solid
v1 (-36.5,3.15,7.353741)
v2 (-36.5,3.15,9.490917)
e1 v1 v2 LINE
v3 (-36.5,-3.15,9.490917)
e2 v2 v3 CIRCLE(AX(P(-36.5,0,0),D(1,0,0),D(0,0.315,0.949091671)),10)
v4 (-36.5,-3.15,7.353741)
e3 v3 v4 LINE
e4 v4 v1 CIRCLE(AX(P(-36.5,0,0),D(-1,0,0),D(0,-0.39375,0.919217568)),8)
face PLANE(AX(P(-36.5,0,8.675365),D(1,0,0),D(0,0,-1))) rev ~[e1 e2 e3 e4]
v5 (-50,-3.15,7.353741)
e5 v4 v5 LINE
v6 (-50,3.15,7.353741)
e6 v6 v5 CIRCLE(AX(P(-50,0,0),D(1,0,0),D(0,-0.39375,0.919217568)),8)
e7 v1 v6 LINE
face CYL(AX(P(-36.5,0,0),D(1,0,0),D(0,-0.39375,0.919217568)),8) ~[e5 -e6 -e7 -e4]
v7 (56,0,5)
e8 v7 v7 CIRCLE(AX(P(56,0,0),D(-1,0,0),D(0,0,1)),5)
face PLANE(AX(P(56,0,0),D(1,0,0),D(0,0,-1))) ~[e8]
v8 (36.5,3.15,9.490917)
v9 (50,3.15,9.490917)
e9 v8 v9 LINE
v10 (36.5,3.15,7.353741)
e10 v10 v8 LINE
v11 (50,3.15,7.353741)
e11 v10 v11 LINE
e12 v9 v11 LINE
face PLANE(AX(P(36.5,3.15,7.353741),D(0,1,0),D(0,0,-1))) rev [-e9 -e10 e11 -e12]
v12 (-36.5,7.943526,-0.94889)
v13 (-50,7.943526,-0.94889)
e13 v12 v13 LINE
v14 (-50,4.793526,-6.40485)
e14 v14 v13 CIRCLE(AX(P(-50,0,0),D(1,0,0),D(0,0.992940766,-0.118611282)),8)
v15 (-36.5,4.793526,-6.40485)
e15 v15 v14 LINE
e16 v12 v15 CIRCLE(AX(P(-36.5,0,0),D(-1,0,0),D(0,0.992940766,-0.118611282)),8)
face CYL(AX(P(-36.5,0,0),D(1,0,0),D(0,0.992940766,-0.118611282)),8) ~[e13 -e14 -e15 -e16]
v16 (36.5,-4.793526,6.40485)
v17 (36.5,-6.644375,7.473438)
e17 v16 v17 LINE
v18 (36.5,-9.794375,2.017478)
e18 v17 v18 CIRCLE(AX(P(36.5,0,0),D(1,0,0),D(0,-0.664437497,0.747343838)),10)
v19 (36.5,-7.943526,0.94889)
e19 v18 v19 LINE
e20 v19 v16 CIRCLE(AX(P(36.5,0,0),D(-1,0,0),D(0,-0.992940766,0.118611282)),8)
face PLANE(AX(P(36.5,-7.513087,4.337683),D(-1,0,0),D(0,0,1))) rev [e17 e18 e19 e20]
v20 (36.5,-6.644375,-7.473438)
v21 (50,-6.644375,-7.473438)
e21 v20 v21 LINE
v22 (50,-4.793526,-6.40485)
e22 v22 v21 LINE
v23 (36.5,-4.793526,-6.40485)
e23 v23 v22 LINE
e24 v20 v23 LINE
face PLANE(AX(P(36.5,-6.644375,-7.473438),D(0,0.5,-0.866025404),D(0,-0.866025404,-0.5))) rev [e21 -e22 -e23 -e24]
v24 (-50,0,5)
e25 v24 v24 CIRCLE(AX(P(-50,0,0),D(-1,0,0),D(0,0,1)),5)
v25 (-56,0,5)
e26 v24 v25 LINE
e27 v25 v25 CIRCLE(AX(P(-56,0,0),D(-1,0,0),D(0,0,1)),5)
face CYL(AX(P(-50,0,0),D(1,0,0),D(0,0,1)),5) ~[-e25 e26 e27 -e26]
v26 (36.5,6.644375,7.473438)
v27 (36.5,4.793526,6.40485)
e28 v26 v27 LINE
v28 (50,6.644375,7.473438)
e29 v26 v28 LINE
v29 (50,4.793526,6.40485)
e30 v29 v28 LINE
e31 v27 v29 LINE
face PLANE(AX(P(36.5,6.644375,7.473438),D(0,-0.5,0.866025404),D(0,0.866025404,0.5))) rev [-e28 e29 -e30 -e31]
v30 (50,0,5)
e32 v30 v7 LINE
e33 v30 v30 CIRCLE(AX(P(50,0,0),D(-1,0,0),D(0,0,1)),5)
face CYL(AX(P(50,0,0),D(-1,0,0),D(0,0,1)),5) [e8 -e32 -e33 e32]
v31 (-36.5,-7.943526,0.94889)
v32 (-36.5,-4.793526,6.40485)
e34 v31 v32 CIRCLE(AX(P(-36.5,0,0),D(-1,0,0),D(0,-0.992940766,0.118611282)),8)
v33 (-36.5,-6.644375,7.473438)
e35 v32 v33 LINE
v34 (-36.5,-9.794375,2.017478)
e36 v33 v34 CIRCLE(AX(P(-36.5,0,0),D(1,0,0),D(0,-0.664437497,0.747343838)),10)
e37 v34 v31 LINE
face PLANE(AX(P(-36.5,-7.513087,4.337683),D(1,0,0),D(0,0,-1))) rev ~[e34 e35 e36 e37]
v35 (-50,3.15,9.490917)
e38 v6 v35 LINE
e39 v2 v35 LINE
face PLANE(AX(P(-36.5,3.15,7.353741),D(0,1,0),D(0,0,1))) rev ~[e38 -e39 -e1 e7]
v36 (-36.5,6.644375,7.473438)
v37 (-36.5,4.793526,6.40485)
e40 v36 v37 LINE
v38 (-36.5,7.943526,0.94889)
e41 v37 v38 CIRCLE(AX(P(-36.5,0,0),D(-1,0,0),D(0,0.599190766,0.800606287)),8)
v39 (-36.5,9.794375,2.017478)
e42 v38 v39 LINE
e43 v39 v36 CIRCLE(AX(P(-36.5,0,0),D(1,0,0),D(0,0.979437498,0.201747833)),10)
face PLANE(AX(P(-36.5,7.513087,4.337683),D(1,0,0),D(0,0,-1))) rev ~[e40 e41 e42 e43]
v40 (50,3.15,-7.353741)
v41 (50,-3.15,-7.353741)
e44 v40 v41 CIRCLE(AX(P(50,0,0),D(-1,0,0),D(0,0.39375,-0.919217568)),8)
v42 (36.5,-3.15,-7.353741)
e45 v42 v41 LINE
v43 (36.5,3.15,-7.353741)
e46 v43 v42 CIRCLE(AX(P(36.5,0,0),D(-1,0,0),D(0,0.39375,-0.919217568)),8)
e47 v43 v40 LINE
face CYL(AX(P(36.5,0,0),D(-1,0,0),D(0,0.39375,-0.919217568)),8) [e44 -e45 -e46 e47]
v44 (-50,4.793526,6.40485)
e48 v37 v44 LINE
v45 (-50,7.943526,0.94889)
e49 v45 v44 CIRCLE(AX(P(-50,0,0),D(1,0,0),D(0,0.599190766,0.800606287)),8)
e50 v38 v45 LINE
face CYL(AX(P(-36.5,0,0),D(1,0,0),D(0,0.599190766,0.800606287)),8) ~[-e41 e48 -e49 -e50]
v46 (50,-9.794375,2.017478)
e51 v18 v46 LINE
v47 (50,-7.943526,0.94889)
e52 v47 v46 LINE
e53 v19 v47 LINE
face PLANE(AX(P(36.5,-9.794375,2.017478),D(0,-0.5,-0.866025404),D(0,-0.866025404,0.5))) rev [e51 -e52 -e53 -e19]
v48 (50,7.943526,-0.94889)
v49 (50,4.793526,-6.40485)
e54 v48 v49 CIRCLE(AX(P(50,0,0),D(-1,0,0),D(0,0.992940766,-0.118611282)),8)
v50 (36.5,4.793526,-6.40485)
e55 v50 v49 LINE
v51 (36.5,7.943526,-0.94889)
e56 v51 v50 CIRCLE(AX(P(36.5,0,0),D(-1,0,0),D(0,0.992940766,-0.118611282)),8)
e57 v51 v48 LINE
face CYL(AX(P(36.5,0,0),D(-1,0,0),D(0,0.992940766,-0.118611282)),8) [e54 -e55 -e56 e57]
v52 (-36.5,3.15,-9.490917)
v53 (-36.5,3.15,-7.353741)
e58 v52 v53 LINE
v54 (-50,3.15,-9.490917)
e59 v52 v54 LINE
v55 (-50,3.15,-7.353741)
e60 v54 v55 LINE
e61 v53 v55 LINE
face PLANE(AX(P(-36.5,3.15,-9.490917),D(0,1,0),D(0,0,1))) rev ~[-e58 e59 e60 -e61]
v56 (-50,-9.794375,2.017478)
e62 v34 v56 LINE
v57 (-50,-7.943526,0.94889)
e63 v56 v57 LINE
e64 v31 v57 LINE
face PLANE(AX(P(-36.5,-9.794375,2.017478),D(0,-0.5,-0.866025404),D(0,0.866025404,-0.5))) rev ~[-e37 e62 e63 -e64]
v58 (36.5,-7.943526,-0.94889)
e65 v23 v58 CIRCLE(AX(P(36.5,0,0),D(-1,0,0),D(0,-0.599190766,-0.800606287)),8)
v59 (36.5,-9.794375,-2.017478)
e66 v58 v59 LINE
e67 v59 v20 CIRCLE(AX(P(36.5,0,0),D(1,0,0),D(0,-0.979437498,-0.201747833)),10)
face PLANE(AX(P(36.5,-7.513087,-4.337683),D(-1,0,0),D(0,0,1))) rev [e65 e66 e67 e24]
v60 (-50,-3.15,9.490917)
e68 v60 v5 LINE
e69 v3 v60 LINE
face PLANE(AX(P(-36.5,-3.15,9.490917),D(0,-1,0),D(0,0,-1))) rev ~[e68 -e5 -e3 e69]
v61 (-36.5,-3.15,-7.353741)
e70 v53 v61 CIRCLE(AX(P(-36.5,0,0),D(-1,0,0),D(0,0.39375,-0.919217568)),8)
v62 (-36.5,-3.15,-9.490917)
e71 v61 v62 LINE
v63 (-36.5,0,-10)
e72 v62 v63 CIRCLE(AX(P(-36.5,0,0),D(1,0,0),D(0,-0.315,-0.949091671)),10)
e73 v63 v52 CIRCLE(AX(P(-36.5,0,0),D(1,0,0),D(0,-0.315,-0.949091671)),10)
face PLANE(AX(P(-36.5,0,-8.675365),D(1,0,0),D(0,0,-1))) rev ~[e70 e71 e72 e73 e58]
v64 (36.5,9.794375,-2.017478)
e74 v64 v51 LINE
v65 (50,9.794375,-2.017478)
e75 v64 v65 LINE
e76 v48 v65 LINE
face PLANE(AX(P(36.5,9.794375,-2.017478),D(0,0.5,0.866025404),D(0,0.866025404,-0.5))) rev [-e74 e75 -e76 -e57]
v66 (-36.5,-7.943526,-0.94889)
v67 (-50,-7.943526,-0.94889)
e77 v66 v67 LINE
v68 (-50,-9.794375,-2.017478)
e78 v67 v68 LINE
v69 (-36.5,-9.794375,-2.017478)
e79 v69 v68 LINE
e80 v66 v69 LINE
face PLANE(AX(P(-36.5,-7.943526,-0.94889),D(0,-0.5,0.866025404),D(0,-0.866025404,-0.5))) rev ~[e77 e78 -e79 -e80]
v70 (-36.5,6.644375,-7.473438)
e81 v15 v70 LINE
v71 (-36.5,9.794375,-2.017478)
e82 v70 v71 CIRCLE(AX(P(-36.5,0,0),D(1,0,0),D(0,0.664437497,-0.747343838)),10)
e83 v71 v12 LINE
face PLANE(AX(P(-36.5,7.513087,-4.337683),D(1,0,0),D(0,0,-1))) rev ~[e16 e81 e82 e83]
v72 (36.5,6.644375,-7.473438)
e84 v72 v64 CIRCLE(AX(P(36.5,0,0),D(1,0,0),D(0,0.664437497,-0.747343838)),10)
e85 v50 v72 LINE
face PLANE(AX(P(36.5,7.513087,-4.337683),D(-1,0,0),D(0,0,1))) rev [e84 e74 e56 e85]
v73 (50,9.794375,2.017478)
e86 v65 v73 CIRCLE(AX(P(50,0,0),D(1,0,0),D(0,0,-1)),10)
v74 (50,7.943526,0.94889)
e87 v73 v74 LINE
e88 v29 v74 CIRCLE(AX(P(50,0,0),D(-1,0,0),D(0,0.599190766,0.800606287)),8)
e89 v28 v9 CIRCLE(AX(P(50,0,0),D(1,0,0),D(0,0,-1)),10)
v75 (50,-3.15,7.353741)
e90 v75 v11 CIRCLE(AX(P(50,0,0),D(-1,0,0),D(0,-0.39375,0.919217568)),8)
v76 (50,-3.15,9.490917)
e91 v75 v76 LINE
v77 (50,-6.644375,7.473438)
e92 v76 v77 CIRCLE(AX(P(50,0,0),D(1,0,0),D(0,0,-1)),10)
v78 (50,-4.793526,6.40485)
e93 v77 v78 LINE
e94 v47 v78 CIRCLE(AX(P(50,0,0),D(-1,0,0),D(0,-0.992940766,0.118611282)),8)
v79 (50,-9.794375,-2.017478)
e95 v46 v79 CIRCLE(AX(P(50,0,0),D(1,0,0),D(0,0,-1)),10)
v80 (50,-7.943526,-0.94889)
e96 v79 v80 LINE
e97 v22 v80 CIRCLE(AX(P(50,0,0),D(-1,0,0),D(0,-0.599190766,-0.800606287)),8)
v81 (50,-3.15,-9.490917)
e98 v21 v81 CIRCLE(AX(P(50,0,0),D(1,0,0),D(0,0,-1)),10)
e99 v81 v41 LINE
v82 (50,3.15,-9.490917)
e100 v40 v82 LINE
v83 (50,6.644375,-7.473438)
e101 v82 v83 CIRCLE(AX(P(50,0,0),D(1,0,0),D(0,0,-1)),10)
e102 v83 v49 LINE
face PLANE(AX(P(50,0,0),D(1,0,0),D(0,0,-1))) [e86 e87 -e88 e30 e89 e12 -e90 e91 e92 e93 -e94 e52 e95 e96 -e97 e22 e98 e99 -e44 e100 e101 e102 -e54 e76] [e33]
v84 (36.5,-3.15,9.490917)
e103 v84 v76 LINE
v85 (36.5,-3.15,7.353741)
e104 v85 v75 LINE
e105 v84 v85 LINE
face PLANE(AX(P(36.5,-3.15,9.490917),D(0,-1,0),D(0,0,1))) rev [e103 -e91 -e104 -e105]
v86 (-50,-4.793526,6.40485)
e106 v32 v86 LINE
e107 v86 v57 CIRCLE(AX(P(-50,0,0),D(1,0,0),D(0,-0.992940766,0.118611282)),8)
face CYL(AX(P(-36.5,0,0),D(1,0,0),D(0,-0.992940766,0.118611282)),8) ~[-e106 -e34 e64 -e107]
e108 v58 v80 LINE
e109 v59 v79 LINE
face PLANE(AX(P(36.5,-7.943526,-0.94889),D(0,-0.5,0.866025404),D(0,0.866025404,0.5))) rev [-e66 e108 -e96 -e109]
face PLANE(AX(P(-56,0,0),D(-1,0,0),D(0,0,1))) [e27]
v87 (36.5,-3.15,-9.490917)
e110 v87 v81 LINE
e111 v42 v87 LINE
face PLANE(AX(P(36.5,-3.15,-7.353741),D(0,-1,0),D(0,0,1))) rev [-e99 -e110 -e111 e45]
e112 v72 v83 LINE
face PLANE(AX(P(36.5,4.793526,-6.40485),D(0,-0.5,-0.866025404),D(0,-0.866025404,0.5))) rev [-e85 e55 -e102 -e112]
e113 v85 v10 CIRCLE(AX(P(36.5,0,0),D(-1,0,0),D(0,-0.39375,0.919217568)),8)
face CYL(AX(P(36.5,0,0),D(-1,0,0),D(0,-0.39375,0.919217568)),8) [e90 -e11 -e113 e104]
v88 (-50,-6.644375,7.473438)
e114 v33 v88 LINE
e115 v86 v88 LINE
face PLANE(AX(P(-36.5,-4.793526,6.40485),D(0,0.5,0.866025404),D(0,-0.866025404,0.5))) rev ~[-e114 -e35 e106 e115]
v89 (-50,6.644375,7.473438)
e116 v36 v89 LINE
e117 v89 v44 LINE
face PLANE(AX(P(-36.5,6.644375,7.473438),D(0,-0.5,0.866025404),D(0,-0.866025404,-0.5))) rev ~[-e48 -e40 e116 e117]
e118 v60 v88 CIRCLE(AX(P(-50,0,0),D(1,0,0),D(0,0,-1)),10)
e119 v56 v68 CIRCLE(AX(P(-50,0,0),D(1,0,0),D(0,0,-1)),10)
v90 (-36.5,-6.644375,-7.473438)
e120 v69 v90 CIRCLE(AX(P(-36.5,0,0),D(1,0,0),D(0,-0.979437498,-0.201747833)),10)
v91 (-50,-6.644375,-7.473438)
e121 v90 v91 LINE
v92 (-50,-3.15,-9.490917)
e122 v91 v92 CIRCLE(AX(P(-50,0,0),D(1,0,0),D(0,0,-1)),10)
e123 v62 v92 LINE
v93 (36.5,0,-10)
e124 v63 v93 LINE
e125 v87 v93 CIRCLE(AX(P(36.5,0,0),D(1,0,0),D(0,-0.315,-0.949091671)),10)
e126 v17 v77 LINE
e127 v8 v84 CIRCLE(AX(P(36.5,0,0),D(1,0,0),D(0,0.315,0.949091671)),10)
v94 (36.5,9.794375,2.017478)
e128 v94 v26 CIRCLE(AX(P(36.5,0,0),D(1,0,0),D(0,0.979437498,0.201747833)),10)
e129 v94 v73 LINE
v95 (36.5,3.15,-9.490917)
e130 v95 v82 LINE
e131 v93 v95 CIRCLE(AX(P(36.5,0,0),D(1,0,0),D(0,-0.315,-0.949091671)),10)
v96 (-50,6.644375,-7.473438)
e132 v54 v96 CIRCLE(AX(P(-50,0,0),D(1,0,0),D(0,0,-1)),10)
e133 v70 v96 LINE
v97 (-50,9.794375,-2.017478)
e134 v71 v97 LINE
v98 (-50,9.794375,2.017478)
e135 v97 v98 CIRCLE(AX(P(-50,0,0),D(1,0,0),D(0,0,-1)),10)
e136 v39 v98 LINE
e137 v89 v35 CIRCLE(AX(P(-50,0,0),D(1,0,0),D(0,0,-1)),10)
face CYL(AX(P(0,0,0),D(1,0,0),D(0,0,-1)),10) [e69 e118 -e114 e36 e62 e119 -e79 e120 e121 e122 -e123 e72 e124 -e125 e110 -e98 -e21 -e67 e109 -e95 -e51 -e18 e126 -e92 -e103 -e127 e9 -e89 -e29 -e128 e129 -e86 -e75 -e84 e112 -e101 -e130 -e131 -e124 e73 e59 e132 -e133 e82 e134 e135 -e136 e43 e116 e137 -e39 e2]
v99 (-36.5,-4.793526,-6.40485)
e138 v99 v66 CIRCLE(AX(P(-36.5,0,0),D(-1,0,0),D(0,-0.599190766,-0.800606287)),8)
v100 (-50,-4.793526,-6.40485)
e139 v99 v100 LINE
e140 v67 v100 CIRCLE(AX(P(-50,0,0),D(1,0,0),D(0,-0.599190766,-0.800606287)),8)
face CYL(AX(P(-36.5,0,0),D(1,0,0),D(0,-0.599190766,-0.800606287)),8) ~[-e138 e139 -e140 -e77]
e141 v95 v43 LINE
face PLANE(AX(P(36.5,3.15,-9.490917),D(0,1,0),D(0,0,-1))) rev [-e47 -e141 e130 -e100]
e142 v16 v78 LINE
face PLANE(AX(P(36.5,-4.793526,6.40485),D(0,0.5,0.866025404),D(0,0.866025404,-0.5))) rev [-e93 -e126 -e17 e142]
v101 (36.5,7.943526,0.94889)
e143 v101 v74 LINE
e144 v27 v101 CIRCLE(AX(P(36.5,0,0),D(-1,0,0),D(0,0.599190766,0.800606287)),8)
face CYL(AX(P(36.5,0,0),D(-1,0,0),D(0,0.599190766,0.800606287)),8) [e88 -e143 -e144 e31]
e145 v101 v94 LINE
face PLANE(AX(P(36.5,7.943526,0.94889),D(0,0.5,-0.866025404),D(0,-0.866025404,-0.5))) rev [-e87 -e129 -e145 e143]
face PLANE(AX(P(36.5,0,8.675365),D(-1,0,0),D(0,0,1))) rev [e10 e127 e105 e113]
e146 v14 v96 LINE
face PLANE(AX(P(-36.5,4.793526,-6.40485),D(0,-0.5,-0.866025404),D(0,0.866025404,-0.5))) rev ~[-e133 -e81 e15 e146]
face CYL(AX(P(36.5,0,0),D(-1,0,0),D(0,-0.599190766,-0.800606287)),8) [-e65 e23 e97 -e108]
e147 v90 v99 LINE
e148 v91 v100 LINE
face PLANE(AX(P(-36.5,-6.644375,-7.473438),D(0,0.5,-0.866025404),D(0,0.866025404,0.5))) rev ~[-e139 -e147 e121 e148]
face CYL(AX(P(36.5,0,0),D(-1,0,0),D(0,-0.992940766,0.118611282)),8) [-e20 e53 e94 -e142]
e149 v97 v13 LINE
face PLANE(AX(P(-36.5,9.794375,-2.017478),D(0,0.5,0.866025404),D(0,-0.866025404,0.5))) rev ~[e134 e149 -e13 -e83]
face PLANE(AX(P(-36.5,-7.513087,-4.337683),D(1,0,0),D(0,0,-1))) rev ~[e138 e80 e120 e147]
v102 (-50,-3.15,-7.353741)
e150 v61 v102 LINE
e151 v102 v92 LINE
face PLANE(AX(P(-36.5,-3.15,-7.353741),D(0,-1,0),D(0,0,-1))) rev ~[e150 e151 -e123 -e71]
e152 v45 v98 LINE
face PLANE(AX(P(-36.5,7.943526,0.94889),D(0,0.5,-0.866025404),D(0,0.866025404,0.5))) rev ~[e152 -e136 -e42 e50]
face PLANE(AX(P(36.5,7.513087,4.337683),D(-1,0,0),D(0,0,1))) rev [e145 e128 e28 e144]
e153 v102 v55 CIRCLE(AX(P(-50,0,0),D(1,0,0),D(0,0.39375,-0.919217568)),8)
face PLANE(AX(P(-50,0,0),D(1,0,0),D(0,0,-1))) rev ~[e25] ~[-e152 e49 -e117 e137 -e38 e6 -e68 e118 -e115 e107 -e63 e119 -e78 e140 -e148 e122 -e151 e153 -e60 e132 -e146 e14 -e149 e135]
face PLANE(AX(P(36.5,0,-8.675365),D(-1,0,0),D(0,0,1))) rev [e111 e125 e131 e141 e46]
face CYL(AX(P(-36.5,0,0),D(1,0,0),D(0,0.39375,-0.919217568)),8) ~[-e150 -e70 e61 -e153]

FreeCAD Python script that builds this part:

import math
import FreeCAD as App
import Part
import Sketcher
Q = App.Units.Quantity

doc = App.newDocument("Part")
params = doc.addObject("Spreadsheet::Sheet", "Params")
for row, (alias, value) in enumerate([
    ("sketch1_diameter", "20 mm"),
    ("pad1_length", "100 mm"),
    ("sketch2_radius", "10 mm"),
    ("sketch2_radius2", "8 mm"),
    ("sketch3_diameter", "10 mm"),
    ("pad2_length", "6 mm"),
], start=1):
    params.set(f"A{row}", alias)
    params.set(f"B{row}", "=" + value)
    params.setAlias(f"B{row}", alias)

body = doc.addObject("PartDesign::Body", "Body")

# Sketch on YZ plane
sketch1 = body.newObject("Sketcher::SketchObject", "Sketch")
sketch1.AttachmentSupport = (doc.getObject("YZ_Plane"), [""])
sketch1.MapMode = "FlatFace"
sketch1.addGeometry(Part.Circle(App.Vector(0, 0, 0), App.Vector(0, 0, 1), 10), False)
sketch1.addConstraint([
    Sketcher.Constraint("Coincident", 0, 3, -1, 1),
    Sketcher.Constraint("Diameter", 0, Q("20 mm")),
])
sketch1.setExpression("Constraints[1]", "Params.sketch1_diameter")
pad1 = body.newObject("PartDesign::Pad", "Pad")
pad1.Profile = sketch1
pad1.setExpression("Length", "Params.pad1_length")
pad1.Midplane = True

# Sketch on YZ plane
sketch2 = body.newObject("Sketcher::SketchObject", "Sketch001")
sketch2.AttachmentSupport = (doc.getObject("YZ_Plane"), [""])
sketch2.MapMode = "FlatFace"
sketch2.AttachmentOffset = App.Placement(App.Vector(0, 0, -36.5), App.Rotation())
sketch2.addGeometry([
    Part.LineSegment(App.Vector(-3.1, -7.4, 0), App.Vector(-3.1, -9.5, 0)),  # 0
    Part.ArcOfCircle(Part.Circle(App.Vector(0, 0, 0), App.Vector(0, 0, 1), 10), math.radians(-108), math.radians(-72)),  # 1
    Part.LineSegment(App.Vector(3.1, -9.5, 0), App.Vector(3.1, -7.4, 0)),  # 2
    Part.ArcOfCircle(Part.Circle(App.Vector(0, 0, 0), App.Vector(0, 0, 1), 8), math.radians(-113), math.radians(-67)),  # 3
    Part.LineSegment(App.Vector(6.6, 7.5, 0), App.Vector(4.8, 6.4, 0)),  # 4
    Part.ArcOfCircle(Part.Circle(App.Vector(0, 0, 0), App.Vector(0, 0, 1), 8), math.radians(7), math.radians(53)),  # 5
    Part.LineSegment(App.Vector(7.9, 0.9, 0), App.Vector(9.8, 2, 0)),  # 6
    Part.ArcOfCircle(Part.Circle(App.Vector(0, 0, 0), App.Vector(0, 0, 1), 10), math.radians(12), math.radians(48)),  # 7
    Part.LineSegment(App.Vector(-3.1, 9.5, 0), App.Vector(-3.1, 7.4, 0)),  # 8
    Part.ArcOfCircle(Part.Circle(App.Vector(0, 0, 0), App.Vector(0, 0, 1), 8), math.radians(67), math.radians(113)),  # 9
    Part.LineSegment(App.Vector(3.1, 7.4, 0), App.Vector(3.1, 9.5, 0)),  # 10
    Part.ArcOfCircle(Part.Circle(App.Vector(0, 0, 0), App.Vector(0, 0, 1), 10), math.radians(72), math.radians(108)),  # 11
    Part.LineSegment(App.Vector(-9.8, 2, 0), App.Vector(-7.9, 0.9, 0)),  # 12
    Part.ArcOfCircle(Part.Circle(App.Vector(0, 0, 0), App.Vector(0, 0, 1), 8), math.radians(127), math.radians(173)),  # 13
    Part.LineSegment(App.Vector(-4.8, 6.4, 0), App.Vector(-6.6, 7.5, 0)),  # 14
    Part.ArcOfCircle(Part.Circle(App.Vector(0, 0, 0), App.Vector(0, 0, 1), 10), math.radians(132), math.radians(168)),  # 15
    Part.LineSegment(App.Vector(-7.9, -0.9, 0), App.Vector(-9.8, -2, 0)),  # 16
    Part.ArcOfCircle(Part.Circle(App.Vector(0, 0, 0), App.Vector(0, 0, 1), 10), math.radians(-168), math.radians(-132)),  # 17
    Part.LineSegment(App.Vector(-6.6, -7.5, 0), App.Vector(-4.8, -6.4, 0)),  # 18
    Part.ArcOfCircle(Part.Circle(App.Vector(0, 0, 0), App.Vector(0, 0, 1), 8), math.radians(-173), math.radians(-127)),  # 19
    Part.LineSegment(App.Vector(4.8, -6.4, 0), App.Vector(6.6, -7.5, 0)),  # 20
    Part.ArcOfCircle(Part.Circle(App.Vector(0, 0, 0), App.Vector(0, 0, 1), 10), math.radians(-48), math.radians(-12)),  # 21
    Part.LineSegment(App.Vector(9.8, -2, 0), App.Vector(7.9, -0.9, 0)),  # 22
    Part.ArcOfCircle(Part.Circle(App.Vector(0, 0, 0), App.Vector(0, 0, 1), 8), math.radians(-53), math.radians(-7)),  # 23
], False)
sketch2.addConstraint([
    Sketcher.Constraint("Coincident", 0, 2, 1, 1),
    Sketcher.Constraint("Coincident", 1, 2, 2, 1),
    Sketcher.Constraint("Coincident", 2, 2, 3, 2),
    Sketcher.Constraint("Coincident", 3, 1, 0, 1),
    Sketcher.Constraint("Coincident", 4, 2, 5, 2),
    Sketcher.Constraint("Coincident", 5, 1, 6, 1),
    Sketcher.Constraint("Coincident", 6, 2, 7, 1),
    Sketcher.Constraint("Coincident", 7, 2, 4, 1),
    Sketcher.Constraint("Coincident", 8, 2, 9, 2),
    Sketcher.Constraint("Coincident", 9, 1, 10, 1),
    Sketcher.Constraint("Coincident", 10, 2, 11, 1),
    Sketcher.Constraint("Coincident", 11, 2, 8, 1),
    Sketcher.Constraint("Coincident", 12, 2, 13, 2),
    Sketcher.Constraint("Coincident", 13, 1, 14, 1),
    Sketcher.Constraint("Coincident", 14, 2, 15, 1),
    Sketcher.Constraint("Coincident", 15, 2, 12, 1),
    Sketcher.Constraint("Coincident", 16, 2, 17, 1),
    Sketcher.Constraint("Coincident", 17, 2, 18, 1),
    Sketcher.Constraint("Coincident", 18, 2, 19, 2),
    Sketcher.Constraint("Coincident", 19, 1, 16, 1),
    Sketcher.Constraint("Coincident", 20, 2, 21, 1),
    Sketcher.Constraint("Coincident", 21, 2, 22, 1),
    Sketcher.Constraint("Coincident", 22, 2, 23, 2),
    Sketcher.Constraint("Coincident", 23, 1, 20, 1),
    Sketcher.Constraint("Vertical", 0),
    Sketcher.Constraint("Vertical", 2),
    Sketcher.Constraint("Vertical", 8),
    Sketcher.Constraint("Vertical", 10),
    Sketcher.Constraint("Coincident", 1, 3, -1, 1),
    Sketcher.Constraint("Coincident", 3, 3, -1, 1),
    Sketcher.Constraint("Coincident", 5, 3, -1, 1),
    Sketcher.Constraint("Coincident", 7, 3, -1, 1),
    Sketcher.Constraint("Coincident", 9, 3, -1, 1),
    Sketcher.Constraint("Coincident", 11, 3, -1, 1),
    Sketcher.Constraint("Coincident", 13, 3, -1, 1),
    Sketcher.Constraint("Coincident", 15, 3, -1, 1),
    Sketcher.Constraint("Coincident", 17, 3, -1, 1),
    Sketcher.Constraint("Coincident", 19, 3, -1, 1),
    Sketcher.Constraint("Coincident", 21, 3, -1, 1),
    Sketcher.Constraint("Coincident", 23, 3, -1, 1),
    Sketcher.Constraint("Equal", 3, 5),
    Sketcher.Constraint("Equal", 1, 7),
    Sketcher.Constraint("Equal", 5, 9),
    Sketcher.Constraint("Equal", 7, 11),
    Sketcher.Constraint("Equal", 9, 13),
    Sketcher.Constraint("Equal", 11, 15),
    Sketcher.Constraint("Equal", 15, 17),
    Sketcher.Constraint("Equal", 13, 19),
    Sketcher.Constraint("Equal", 17, 21),
    Sketcher.Constraint("Equal", 19, 23),
    Sketcher.Constraint("Parallel", 4, 6),
    Sketcher.Constraint("Parallel", 12, 14),
    Sketcher.Constraint("Parallel", 6, 16),
    Sketcher.Constraint("Parallel", 16, 18),
    Sketcher.Constraint("Parallel", 14, 20),
    Sketcher.Constraint("Parallel", 20, 22),
    Sketcher.Constraint("Horizontal", 0, 2, 1, 2),
    Sketcher.Constraint("Horizontal", 8, 2, 9, 1),
    Sketcher.Constraint("Horizontal", 5, 1, 12, 2),
    Sketcher.Constraint("Horizontal", 4, 2, 13, 1),
    Sketcher.Constraint("Horizontal", 7, 2, 14, 2),
    Sketcher.Constraint("Horizontal", 17, 2, 20, 2),
    Sketcher.Constraint("Horizontal", 16, 2, 21, 2),
    Sketcher.Constraint("Vertical", 3, 1, 8, 2),
    Sketcher.Constraint("Vertical", 15, 2, 16, 2),
    Sketcher.Constraint("Vertical", 14, 2, 17, 2),
    Sketcher.Constraint("Equal", 4, 6),
    Sketcher.Constraint("Radius", 1, Q("10 mm")),
    Sketcher.Constraint("Radius", 3, Q("8 mm")),
    Sketcher.Constraint("Angle", 4, Q("-150 deg")),
    Sketcher.Constraint("DistanceX", 0, 2, 1, 2, Q("6.3 mm")),
    Sketcher.Constraint("DistanceX", 4, 2, 5, 1, Q("3.15 mm")),
])
sketch2.setExpression("Constraints[67]", "Params.sketch2_radius")
sketch2.setExpression("Constraints[68]", "Params.sketch2_radius2")
pocket1 = body.newObject("PartDesign::Pocket", "Pocket")
pocket1.Profile = sketch2
pocket1.Type = "ThroughAll"

# Sketch on YZ plane
sketch3 = body.newObject("Sketcher::SketchObject", "Sketch002")
sketch3.AttachmentSupport = (doc.getObject("YZ_Plane"), [""])
sketch3.MapMode = "FlatFace"
sketch3.AttachmentOffset = App.Placement(App.Vector(0, 0, -50), App.Rotation())
sketch3.addGeometry(Part.Circle(App.Vector(0, 0, 0), App.Vector(0, 0, 1), 5), False)
sketch3.addConstraint([
    Sketcher.Constraint("Coincident", 0, 3, -1, 1),
    Sketcher.Constraint("Diameter", 0, Q("10 mm")),
])
sketch3.setExpression("Constraints[1]", "Params.sketch3_diameter")
pad2 = body.newObject("PartDesign::Pad", "Pad001")
pad2.Profile = sketch3
pad2.setExpression("Length", "Params.pad2_length")
pad2.Reversed = True
doc.recompute()

mirrored = body.newObject("PartDesign::Mirrored", "Mirrored")
mirrored.Originals = [pocket1, pad2]
mirrored.MirrorPlane = (doc.getObject("YZ_Plane"), [""])
body.Tip = mirrored

doc.recompute()
